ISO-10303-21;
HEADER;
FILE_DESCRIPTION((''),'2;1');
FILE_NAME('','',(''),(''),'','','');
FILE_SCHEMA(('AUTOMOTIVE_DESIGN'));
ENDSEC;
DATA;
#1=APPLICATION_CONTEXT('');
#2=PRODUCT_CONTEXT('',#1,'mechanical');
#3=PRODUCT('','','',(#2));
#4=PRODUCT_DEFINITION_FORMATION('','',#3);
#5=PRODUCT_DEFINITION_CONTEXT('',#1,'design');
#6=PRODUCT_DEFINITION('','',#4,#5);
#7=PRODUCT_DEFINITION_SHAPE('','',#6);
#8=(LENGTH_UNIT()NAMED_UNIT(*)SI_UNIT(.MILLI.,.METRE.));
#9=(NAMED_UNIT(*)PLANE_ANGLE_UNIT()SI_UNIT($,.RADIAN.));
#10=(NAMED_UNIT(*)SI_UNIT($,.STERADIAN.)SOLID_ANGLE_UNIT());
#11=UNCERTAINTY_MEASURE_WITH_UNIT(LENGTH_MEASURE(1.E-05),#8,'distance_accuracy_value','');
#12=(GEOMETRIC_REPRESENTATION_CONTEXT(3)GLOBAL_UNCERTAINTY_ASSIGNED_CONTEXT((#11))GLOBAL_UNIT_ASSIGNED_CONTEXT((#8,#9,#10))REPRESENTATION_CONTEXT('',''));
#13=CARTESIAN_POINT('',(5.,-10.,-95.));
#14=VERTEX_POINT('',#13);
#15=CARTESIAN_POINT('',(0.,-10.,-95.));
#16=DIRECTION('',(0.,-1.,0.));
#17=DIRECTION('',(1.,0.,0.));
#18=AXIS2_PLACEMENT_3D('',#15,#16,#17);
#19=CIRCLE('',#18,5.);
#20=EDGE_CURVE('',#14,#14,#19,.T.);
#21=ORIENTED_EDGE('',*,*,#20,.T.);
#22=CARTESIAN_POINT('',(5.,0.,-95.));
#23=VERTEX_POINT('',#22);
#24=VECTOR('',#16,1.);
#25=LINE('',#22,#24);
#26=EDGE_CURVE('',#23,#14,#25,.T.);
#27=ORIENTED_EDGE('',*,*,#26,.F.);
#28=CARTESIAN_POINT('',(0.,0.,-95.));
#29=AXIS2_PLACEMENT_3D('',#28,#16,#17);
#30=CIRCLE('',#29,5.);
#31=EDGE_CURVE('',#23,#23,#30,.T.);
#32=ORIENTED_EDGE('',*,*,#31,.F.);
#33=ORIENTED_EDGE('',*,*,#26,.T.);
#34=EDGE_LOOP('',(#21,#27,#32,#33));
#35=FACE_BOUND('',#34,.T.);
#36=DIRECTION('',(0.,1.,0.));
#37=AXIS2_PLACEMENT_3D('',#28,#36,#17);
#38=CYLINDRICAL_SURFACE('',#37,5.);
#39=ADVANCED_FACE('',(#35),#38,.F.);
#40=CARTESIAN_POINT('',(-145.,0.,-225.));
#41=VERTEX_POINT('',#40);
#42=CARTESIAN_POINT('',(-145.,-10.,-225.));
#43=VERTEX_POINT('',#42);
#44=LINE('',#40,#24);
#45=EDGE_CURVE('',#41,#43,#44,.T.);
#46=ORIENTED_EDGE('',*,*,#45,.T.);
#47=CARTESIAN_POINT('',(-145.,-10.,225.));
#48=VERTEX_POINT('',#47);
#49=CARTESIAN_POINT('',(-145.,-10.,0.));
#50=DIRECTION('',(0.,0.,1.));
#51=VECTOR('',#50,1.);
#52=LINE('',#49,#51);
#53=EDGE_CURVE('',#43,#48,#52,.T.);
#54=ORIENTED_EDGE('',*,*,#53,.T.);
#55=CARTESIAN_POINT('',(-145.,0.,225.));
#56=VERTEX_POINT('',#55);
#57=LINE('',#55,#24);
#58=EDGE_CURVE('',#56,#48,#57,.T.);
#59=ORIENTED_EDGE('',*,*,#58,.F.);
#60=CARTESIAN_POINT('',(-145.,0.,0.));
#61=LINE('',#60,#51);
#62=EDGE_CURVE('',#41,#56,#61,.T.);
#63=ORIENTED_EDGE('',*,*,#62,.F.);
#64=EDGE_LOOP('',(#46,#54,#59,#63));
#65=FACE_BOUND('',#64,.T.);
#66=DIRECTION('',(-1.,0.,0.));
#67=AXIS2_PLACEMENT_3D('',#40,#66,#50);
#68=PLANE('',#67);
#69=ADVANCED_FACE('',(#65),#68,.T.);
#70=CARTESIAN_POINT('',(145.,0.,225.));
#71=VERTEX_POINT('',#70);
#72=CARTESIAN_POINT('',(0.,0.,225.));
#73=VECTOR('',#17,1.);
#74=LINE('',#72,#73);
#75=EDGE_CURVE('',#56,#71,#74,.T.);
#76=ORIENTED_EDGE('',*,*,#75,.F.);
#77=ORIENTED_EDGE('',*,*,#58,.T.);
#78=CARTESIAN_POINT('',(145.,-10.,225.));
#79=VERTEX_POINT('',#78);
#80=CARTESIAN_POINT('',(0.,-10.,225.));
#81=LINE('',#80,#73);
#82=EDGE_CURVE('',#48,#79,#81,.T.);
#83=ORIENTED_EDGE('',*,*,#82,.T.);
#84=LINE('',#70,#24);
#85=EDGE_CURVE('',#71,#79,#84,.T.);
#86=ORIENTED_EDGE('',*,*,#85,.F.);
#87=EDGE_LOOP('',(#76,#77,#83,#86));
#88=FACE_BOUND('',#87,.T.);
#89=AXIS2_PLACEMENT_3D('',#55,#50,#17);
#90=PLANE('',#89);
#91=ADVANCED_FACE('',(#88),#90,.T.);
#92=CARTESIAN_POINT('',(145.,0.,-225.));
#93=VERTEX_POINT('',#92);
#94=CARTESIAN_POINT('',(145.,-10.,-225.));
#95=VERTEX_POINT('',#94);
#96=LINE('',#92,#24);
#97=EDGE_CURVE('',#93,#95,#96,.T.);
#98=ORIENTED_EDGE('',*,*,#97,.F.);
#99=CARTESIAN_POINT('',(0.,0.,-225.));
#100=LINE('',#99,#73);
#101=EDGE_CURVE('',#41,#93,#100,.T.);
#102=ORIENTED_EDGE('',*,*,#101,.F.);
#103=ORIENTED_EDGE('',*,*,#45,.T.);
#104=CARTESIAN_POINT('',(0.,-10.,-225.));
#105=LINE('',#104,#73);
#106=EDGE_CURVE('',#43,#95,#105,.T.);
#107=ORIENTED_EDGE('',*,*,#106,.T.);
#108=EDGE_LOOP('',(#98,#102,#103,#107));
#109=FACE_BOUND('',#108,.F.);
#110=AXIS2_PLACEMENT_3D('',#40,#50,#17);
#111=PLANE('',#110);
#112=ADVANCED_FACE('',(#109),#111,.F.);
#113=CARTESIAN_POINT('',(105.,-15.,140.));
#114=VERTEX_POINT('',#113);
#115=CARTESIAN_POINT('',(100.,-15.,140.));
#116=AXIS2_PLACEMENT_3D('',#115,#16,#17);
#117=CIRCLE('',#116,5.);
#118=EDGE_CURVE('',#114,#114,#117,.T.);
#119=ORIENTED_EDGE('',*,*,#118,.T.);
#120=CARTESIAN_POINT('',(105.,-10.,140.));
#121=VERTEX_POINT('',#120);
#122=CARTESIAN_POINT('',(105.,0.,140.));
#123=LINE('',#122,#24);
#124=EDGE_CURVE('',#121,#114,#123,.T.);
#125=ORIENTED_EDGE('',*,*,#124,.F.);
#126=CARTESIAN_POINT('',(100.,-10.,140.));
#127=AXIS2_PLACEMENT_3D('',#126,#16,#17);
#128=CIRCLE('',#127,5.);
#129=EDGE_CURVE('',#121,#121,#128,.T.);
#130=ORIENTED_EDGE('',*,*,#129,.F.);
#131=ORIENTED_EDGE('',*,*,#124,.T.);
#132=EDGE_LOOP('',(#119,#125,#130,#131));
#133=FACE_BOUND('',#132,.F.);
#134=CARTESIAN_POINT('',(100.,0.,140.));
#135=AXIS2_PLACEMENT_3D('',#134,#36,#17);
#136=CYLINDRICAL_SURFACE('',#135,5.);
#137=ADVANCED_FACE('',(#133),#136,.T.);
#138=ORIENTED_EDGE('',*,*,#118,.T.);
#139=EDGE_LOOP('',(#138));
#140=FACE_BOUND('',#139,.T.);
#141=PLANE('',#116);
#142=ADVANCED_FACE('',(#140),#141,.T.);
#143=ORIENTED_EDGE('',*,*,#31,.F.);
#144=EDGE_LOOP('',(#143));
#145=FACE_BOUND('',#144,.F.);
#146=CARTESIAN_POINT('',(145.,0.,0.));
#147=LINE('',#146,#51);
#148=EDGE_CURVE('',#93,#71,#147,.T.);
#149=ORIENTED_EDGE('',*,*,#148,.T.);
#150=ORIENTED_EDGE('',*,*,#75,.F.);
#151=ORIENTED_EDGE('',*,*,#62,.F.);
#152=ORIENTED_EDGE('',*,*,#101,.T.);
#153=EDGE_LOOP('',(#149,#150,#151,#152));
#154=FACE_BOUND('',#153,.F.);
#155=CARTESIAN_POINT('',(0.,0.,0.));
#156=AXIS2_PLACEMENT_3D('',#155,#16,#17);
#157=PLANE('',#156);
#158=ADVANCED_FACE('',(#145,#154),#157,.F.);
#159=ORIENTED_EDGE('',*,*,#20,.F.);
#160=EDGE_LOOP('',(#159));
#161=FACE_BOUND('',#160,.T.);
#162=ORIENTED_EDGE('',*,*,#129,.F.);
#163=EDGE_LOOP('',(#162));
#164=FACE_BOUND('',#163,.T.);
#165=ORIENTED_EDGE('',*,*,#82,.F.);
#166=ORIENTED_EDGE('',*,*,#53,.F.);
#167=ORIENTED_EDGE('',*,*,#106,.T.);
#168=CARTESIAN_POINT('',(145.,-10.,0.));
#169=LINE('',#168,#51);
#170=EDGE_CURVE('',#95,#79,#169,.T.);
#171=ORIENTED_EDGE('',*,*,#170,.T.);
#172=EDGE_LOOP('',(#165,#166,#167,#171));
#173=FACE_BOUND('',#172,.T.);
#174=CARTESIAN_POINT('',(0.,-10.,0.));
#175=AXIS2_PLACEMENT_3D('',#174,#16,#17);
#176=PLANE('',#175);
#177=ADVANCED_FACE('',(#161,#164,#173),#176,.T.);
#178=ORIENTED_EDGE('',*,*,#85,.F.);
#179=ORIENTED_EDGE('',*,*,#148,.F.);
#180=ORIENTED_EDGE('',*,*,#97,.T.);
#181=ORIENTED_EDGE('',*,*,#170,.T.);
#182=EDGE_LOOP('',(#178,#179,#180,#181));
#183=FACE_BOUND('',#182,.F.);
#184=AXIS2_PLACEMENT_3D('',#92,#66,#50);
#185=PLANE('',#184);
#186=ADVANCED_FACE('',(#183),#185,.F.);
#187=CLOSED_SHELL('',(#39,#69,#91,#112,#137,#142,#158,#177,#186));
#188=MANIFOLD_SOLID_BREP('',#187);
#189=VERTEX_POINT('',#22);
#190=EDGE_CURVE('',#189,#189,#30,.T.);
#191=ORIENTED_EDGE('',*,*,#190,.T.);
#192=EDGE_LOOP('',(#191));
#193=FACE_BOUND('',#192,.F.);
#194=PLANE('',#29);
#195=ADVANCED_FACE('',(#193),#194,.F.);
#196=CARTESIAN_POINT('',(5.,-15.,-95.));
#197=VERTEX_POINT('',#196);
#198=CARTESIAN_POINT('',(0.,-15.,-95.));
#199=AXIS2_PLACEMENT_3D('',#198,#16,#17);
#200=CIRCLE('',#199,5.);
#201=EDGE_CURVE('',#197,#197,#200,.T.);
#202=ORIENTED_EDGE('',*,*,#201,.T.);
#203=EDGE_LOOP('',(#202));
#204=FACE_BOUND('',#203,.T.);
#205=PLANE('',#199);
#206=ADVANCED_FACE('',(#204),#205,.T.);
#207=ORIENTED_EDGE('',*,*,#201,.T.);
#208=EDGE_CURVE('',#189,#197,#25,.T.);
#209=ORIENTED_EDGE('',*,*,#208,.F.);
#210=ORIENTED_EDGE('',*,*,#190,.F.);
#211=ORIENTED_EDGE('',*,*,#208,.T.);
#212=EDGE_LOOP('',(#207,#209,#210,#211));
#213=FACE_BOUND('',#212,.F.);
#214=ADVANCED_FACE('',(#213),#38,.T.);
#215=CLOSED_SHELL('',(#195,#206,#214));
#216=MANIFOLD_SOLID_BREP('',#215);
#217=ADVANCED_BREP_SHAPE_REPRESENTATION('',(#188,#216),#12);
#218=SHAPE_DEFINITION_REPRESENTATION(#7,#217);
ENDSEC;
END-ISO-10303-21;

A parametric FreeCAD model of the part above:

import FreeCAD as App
import Part
import Sketcher
Q = App.Units.Quantity

doc = App.newDocument("Part")
body = doc.addObject("PartDesign::Body", "Body")

sketch1 = body.newObject("Sketcher::SketchObject", "Sketch")
sketch1.AttachmentSupport = (doc.getObject("XZ_Plane"), [""])
sketch1.MapMode = "FlatFace"
sketch1.addGeometry([
    Part.LineSegment(App.Vector(-145, 225, 0), App.Vector(-145, -225, 0)),
    Part.LineSegment(App.Vector(-145, -225, 0), App.Vector(145, -225, 0)),
    Part.LineSegment(App.Vector(145, -225, 0), App.Vector(145, 225, 0)),
    Part.LineSegment(App.Vector(145, 225, 0), App.Vector(-145, 225, 0)),
    Part.Circle(App.Vector(0, -95, 0), App.Vector(0, 0, 1), 5),
    Part.Circle(App.Vector(100, 140, 0), App.Vector(0, 0, 1), 5),
], False)
sketch1.addConstraint([
    Sketcher.Constraint("Coincident", 0, 2, 1, 1),
    Sketcher.Constraint("Coincident", 1, 2, 2, 1),
    Sketcher.Constraint("Coincident", 2, 2, 3, 1),
    Sketcher.Constraint("Coincident", 3, 2, 0, 1),
    Sketcher.Constraint("Vertical", 0),
    Sketcher.Constraint("Horizontal", 1),
    Sketcher.Constraint("Vertical", 2),
    Sketcher.Constraint("Horizontal", 3),
    Sketcher.Constraint("Equal", 4, 5),
    Sketcher.Constraint("Symmetric", 0, 2, 2, 2, -1, 1),
    Sketcher.Constraint("PointOnObject", 4, 3, -2),
    Sketcher.Constraint("Diameter", 4, Q("10 mm")),
    Sketcher.Constraint("DistanceX", 1, 1, 1, 2, Q("290 mm")),
    Sketcher.Constraint("DistanceY", 0, 2, 0, 1, Q("450 mm")),
    Sketcher.Constraint("DistanceY", 4, 3, -1, 1, Q("95 mm")),
    Sketcher.Constraint("DistanceX", -1, 1, 5, 3, Q("100 mm")),
    Sketcher.Constraint("DistanceY", -1, 1, 5, 3, Q("140 mm")),
])
pad1 = body.newObject("PartDesign::Pad", "Pad")
pad1.Profile = sketch1
pad1.Length = 10

sketch2 = body.newObject("Sketcher::SketchObject", "Sketch001")
sketch2.AttachmentSupport = (doc.getObject("XZ_Plane"), [""])
sketch2.MapMode = "FlatFace"
sketch2.addGeometry(Part.Circle(App.Vector(100, 140, 0), App.Vector(0, 0, 1), 5), False)
sketch2.addConstraint([
    Sketcher.Constraint("Diameter", 0, Q("10 mm")),
    Sketcher.Constraint("DistanceX", -1, 1, 0, 3, Q("100 mm")),
    Sketcher.Constraint("DistanceY", -1, 1, 0, 3, Q("140 mm")),
])
pad2 = body.newObject("PartDesign::Pad", "Pad001")
pad2.Profile = sketch2
pad2.Length = 15
body2 = doc.addObject("PartDesign::Body", "Body001")

sketch3 = body2.newObject("Sketcher::SketchObject", "Sketch002")
sketch3.AttachmentSupport = (doc.getObject("XZ_Plane001"), [""])
sketch3.MapMode = "FlatFace"
sketch3.addGeometry(Part.Circle(App.Vector(0, -95, 0), App.Vector(0, 0, 1), 5), False)
sketch3.addConstraint([
    Sketcher.Constraint("PointOnObject", 0, 3, -2),
    Sketcher.Constraint("Diameter", 0, Q("10 mm")),
    Sketcher.Constraint("DistanceY", 0, 3, -1, 1, Q("95 mm")),
])
pad3 = body2.newObject("PartDesign::Pad", "Pad002")
pad3.Profile = sketch3
pad3.Length = 15

doc.recompute()
